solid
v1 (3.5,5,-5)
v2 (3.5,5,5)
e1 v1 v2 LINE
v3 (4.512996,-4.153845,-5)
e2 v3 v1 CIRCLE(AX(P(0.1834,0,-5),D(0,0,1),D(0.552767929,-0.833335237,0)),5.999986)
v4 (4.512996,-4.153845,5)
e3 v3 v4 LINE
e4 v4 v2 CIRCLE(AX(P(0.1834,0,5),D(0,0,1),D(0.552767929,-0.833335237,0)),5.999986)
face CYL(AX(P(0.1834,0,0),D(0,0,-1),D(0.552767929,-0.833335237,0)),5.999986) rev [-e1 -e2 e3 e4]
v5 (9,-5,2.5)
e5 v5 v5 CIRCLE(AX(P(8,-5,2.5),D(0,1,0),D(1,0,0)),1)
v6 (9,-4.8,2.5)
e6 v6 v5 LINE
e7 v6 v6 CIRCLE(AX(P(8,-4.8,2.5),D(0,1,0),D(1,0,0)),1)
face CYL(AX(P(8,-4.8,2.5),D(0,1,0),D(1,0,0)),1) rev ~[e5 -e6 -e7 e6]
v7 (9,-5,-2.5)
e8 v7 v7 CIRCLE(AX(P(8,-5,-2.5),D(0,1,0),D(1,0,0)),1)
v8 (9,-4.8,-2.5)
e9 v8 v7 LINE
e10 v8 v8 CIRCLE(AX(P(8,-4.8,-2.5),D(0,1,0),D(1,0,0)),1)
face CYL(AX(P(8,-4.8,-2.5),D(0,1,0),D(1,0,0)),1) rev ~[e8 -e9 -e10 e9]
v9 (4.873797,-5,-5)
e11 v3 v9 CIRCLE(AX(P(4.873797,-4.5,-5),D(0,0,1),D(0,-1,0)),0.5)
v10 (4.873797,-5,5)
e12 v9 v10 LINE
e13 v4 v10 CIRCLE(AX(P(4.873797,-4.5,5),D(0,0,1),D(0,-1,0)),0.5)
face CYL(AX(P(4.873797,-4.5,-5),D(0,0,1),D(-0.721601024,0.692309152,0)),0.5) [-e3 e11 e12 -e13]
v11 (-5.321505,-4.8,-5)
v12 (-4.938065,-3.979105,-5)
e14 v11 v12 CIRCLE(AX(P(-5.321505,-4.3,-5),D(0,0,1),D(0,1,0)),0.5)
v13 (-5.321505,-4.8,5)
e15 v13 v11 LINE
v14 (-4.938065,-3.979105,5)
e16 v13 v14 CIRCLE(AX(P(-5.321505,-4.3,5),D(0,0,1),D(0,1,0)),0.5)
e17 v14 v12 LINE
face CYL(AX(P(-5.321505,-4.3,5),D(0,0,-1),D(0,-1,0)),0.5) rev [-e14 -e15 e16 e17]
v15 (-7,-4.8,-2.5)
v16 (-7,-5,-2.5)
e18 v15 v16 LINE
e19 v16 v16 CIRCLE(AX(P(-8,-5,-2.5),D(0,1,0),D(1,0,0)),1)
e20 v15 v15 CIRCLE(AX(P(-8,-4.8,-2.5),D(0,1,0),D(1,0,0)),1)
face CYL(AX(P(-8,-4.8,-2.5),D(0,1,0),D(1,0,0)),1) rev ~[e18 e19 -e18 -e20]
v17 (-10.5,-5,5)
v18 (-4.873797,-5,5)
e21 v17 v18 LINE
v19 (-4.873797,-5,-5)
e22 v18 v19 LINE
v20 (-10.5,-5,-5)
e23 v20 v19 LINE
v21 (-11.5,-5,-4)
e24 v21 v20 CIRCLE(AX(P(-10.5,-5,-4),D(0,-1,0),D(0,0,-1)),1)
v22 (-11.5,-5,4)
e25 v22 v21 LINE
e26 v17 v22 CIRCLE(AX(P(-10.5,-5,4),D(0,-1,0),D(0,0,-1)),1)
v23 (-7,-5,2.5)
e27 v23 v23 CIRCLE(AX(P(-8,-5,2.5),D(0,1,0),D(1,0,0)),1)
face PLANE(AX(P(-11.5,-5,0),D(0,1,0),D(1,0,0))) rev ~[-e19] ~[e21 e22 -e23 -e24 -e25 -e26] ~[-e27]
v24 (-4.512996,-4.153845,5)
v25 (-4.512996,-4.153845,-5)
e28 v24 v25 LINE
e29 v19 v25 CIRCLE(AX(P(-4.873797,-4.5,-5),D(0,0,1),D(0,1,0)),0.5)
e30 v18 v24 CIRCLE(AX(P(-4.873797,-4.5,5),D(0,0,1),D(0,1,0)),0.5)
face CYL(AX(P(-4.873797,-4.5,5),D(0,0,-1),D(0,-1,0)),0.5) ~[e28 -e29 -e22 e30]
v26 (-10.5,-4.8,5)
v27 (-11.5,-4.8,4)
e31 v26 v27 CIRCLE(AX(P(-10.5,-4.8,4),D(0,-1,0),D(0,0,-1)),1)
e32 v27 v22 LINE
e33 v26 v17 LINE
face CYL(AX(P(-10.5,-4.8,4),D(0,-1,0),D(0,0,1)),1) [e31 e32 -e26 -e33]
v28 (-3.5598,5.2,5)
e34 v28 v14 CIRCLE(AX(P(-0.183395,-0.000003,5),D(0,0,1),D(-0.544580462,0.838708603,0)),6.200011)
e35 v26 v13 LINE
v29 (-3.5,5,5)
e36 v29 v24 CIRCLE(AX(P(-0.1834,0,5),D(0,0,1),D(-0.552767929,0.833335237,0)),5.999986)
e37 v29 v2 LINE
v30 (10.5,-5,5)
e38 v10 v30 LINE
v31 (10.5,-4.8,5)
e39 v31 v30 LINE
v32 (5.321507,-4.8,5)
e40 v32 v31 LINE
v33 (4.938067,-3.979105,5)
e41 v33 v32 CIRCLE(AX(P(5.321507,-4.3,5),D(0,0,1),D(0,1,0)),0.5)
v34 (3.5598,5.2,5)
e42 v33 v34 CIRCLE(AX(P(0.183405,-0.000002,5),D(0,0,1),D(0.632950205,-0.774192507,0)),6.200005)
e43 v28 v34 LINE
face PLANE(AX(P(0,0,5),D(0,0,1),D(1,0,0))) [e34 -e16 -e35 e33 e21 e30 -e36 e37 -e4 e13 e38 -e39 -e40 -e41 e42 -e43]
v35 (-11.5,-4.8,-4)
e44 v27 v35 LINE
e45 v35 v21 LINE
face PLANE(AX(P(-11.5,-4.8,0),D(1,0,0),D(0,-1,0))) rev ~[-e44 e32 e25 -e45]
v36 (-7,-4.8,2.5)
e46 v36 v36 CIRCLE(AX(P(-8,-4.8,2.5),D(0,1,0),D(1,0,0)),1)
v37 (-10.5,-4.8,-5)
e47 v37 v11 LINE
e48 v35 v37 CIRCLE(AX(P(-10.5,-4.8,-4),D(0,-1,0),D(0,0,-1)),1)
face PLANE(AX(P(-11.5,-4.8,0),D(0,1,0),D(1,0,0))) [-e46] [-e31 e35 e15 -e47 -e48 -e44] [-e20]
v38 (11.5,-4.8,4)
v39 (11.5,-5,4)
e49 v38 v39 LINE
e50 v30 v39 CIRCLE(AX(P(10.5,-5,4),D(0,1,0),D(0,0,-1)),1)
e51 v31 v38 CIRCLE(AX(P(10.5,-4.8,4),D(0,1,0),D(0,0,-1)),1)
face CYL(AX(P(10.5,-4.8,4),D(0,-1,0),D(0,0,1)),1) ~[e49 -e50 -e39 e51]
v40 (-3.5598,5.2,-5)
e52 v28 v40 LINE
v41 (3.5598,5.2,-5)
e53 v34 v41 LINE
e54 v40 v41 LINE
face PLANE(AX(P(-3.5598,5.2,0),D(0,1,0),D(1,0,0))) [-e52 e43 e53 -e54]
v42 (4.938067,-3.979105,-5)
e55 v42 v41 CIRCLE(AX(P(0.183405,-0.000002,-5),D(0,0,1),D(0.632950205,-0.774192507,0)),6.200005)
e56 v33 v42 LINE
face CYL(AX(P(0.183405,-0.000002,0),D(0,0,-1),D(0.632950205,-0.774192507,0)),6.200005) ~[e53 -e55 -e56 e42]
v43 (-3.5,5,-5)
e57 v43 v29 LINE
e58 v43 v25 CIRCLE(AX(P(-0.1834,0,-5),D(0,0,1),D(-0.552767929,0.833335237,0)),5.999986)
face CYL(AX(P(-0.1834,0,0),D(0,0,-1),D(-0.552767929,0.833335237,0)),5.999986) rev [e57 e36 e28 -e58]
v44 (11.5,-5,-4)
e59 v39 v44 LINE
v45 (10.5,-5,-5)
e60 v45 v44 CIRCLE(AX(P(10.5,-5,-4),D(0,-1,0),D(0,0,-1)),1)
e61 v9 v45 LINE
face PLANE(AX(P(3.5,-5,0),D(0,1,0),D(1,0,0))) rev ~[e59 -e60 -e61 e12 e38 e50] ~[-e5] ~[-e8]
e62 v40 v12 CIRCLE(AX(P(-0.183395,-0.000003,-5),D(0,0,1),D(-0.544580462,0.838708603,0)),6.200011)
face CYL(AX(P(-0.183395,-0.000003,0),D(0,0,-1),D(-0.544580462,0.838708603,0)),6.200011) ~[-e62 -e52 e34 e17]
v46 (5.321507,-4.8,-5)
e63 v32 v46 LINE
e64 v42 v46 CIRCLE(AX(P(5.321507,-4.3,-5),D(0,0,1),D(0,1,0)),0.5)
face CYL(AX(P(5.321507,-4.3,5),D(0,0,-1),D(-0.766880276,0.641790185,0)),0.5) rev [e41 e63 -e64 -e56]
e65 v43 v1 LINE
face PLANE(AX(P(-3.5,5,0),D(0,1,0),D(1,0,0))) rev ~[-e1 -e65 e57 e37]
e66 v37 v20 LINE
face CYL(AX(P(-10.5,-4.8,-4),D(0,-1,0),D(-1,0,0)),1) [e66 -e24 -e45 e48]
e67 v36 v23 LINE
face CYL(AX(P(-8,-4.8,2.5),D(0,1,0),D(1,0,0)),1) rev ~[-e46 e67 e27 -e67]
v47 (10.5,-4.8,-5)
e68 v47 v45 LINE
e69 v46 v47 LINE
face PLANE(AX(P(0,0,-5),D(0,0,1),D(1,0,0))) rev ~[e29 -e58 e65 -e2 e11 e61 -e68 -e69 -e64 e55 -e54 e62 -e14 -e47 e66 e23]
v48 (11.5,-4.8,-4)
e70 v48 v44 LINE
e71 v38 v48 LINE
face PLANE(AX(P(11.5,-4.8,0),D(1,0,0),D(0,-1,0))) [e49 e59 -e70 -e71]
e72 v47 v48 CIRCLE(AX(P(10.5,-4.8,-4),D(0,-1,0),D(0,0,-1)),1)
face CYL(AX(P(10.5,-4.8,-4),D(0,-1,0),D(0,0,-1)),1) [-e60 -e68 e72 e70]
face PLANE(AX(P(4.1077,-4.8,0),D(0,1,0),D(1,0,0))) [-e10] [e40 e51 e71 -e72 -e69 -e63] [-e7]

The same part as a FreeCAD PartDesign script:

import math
import FreeCAD as App
import Part
import Sketcher

V = App.Vector
Q = App.Units.Quantity


def edges_at(feature, points):
    """Names of the edges that pass closest to the given points."""
    edges = feature.Shape.Edges
    near = lambda p: min(range(len(edges)), key=lambda i: edges[i].distToShape(Part.Vertex(*p))[0])
    return sorted({f"Edge{near(p) + 1}" for p in points})

doc = App.newDocument("Part")
body = doc.addObject("PartDesign::Body", "Body")

sketch1 = body.newObject("Sketcher::SketchObject", "Sketch")
sketch1.AttachmentSupport = (doc.getObject("XY_Plane"), [""])
sketch1.MapMode = "FlatFace"
sketch1.addGeometry([
    Part.ArcOfCircle(Part.Circle(V(-0.1834, 0, 0), V(0, 0, 1), 5.999986), math.radians(123.557112), math.radians(236.442888)),
    Part.LineSegment(V(-3.5, 5, 0), V(3.5, 5, 0)),
    Part.ArcOfCircle(Part.Circle(V(0.1834, 0, 0), V(0, 0, 1), 5.999986), math.radians(-56.442888), math.radians(56.442888)),
    Part.LineSegment(V(3.5, -5, 0), V(11.5, -5, 0)),
    Part.LineSegment(V(11.5, -5, 0), V(11.5, -4.8, 0)),
    Part.LineSegment(V(11.5, -4.8, 0), V(4.1077, -4.8, 0)),
    Part.ArcOfCircle(Part.Circle(V(0.1834, 0, 0), V(0, 0, 1), 6.200011), math.radians(-50.731855), math.radians(57.004026)),
    Part.LineSegment(V(3.5598, 5.2, 0), V(-3.5598, 5.2, 0)),
    Part.ArcOfCircle(Part.Circle(V(-0.1834, 0, 0), V(0, 0, 1), 6.200006), math.radians(122.995974), math.radians(230.731855)),
    Part.LineSegment(V(-4.1077, -4.8, 0), V(-11.5, -4.8, 0)),
    Part.LineSegment(V(-11.5, -4.8, 0), V(-11.5, -5, 0)),
    Part.LineSegment(V(-11.5, -5, 0), V(-3.5, -5, 0)),
], False)
sketch1.addConstraint([
    Sketcher.Constraint("Coincident", 0, 1, 1, 1),
    Sketcher.Constraint("Coincident", 1, 2, 2, 2),
    Sketcher.Constraint("Coincident", 2, 1, 3, 1),
    Sketcher.Constraint("Coincident", 3, 2, 4, 1),
    Sketcher.Constraint("Coincident", 4, 2, 5, 1),
    Sketcher.Constraint("Coincident", 5, 2, 6, 1),
    Sketcher.Constraint("Coincident", 6, 2, 7, 1),
    Sketcher.Constraint("Coincident", 7, 2, 8, 1),
    Sketcher.Constraint("Coincident", 8, 2, 9, 1),
    Sketcher.Constraint("Coincident", 9, 2, 10, 1),
    Sketcher.Constraint("Coincident", 10, 2, 11, 1),
    Sketcher.Constraint("Coincident", 11, 2, 0, 2),
    Sketcher.Constraint("Horizontal", 1),
    Sketcher.Constraint("Horizontal", 3),
    Sketcher.Constraint("Vertical", 4),
    Sketcher.Constraint("Horizontal", 5),
    Sketcher.Constraint("Horizontal", 7),
    Sketcher.Constraint("Horizontal", 9),
    Sketcher.Constraint("Vertical", 10),
    Sketcher.Constraint("Horizontal", 11),
    Sketcher.Constraint("Coincident", 6, 3, 2, 3),
    Sketcher.Constraint("Coincident", 8, 3, 0, 3),
    Sketcher.Constraint("Equal", 0, 2),
    Sketcher.Constraint("Equal", 6, 8),
    Sketcher.Constraint("Symmetric", 0, 3, 2, 3, -1, 1),
    Sketcher.Constraint("Symmetric", 5, 2, 8, 2, -2),
    Sketcher.Constraint("Symmetric", 3, 2, 10, 2, -2),
    Sketcher.Constraint("Vertical", 1, 2, 2, 1),
    Sketcher.Constraint("Radius", 0, Q("6 mm")),
    Sketcher.Constraint("DistanceX", 1, 1, 1, 2, Q("7 mm")),
    Sketcher.Constraint("DistanceX", 3, 1, 3, 2, Q("8 mm")),
    Sketcher.Constraint("DistanceY", 4, 1, 4, 2, Q("0.2 mm")),
    Sketcher.Constraint("DistanceY", 2, 1, 1, 2, Q("10 mm")),
    Sketcher.Constraint("Radius", 6, Q("6.2 mm")),
    Sketcher.Constraint("DistanceY", 1, 2, 6, 2, Q("0.2 mm")),
])
pad1 = body.newObject("PartDesign::Pad", "Pad")
pad1.Profile = sketch1
pad1.Length = 10
pad1.Midplane = True
doc.recompute()

fillet = body.newObject("PartDesign::Fillet", "Fillet")
fillet.Base = (pad1, edges_at(pad1, [
    (-11.5, -4.9, -5),
    (-11.5, -4.9, 5),
    (11.5, -4.9, 5),
    (11.5, -4.9, -5),
]))
fillet.Radius = 1
doc.recompute()

fillet2 = body.newObject("PartDesign::Fillet", "Fillet001")
fillet2.Base = (fillet, edges_at(fillet, [
    (4.108, -4.8, 0),
    (3.5, -5, 0),
    (-3.5, -5, 0),
    (-4.108, -4.8, 0),
]))
fillet2.Radius = 0.5

sketch2 = body.newObject("Sketcher::SketchObject", "Sketch001")
sketch2.AttachmentSupport = (doc.getObject("XZ_Plane"), [""])
sketch2.MapMode = "FlatFace"
sketch2.AttachmentOffset = App.Placement(V(0, 0, 4.8), App.Rotation())
sketch2.addGeometry([
    Part.Circle(V(8, 2.5, 0), V(0, 0, 1), 1),
    Part.Circle(V(8, -2.5, 0), V(0, 0, 1), 1),
    Part.Circle(V(-8, -2.5, 0), V(0, 0, 1), 1),
    Part.Circle(V(-8, 2.5, 0), V(0, 0, 1), 1),
], False)
sketch2.addConstraint([
    Sketcher.Constraint("Equal", 0, 1),
    Sketcher.Constraint("Equal", 1, 2),
    Sketcher.Constraint("Equal", 2, 3),
    Sketcher.Constraint("Symmetric", 0, 3, 2, 3, -1, 1),
    Sketcher.Constraint("Symmetric", 1, 3, 3, 3, -1, 1),
    Sketcher.Constraint("Symmetric", 1, 3, 2, 3, -2),
    Sketcher.Constraint("Diameter", 0, Q("2 mm")),
    Sketcher.Constraint("DistanceX", -1, 1, 0, 3, Q("8 mm")),
    Sketcher.Constraint("DistanceY", 1, 3, 0, 3, Q("5 mm")),
])
pocket1 = body.newObject("PartDesign::Pocket", "Pocket")
pocket1.Profile = sketch2
pocket1.Type = "ThroughAll"
pocket1.Reversed = True

doc.recompute()
